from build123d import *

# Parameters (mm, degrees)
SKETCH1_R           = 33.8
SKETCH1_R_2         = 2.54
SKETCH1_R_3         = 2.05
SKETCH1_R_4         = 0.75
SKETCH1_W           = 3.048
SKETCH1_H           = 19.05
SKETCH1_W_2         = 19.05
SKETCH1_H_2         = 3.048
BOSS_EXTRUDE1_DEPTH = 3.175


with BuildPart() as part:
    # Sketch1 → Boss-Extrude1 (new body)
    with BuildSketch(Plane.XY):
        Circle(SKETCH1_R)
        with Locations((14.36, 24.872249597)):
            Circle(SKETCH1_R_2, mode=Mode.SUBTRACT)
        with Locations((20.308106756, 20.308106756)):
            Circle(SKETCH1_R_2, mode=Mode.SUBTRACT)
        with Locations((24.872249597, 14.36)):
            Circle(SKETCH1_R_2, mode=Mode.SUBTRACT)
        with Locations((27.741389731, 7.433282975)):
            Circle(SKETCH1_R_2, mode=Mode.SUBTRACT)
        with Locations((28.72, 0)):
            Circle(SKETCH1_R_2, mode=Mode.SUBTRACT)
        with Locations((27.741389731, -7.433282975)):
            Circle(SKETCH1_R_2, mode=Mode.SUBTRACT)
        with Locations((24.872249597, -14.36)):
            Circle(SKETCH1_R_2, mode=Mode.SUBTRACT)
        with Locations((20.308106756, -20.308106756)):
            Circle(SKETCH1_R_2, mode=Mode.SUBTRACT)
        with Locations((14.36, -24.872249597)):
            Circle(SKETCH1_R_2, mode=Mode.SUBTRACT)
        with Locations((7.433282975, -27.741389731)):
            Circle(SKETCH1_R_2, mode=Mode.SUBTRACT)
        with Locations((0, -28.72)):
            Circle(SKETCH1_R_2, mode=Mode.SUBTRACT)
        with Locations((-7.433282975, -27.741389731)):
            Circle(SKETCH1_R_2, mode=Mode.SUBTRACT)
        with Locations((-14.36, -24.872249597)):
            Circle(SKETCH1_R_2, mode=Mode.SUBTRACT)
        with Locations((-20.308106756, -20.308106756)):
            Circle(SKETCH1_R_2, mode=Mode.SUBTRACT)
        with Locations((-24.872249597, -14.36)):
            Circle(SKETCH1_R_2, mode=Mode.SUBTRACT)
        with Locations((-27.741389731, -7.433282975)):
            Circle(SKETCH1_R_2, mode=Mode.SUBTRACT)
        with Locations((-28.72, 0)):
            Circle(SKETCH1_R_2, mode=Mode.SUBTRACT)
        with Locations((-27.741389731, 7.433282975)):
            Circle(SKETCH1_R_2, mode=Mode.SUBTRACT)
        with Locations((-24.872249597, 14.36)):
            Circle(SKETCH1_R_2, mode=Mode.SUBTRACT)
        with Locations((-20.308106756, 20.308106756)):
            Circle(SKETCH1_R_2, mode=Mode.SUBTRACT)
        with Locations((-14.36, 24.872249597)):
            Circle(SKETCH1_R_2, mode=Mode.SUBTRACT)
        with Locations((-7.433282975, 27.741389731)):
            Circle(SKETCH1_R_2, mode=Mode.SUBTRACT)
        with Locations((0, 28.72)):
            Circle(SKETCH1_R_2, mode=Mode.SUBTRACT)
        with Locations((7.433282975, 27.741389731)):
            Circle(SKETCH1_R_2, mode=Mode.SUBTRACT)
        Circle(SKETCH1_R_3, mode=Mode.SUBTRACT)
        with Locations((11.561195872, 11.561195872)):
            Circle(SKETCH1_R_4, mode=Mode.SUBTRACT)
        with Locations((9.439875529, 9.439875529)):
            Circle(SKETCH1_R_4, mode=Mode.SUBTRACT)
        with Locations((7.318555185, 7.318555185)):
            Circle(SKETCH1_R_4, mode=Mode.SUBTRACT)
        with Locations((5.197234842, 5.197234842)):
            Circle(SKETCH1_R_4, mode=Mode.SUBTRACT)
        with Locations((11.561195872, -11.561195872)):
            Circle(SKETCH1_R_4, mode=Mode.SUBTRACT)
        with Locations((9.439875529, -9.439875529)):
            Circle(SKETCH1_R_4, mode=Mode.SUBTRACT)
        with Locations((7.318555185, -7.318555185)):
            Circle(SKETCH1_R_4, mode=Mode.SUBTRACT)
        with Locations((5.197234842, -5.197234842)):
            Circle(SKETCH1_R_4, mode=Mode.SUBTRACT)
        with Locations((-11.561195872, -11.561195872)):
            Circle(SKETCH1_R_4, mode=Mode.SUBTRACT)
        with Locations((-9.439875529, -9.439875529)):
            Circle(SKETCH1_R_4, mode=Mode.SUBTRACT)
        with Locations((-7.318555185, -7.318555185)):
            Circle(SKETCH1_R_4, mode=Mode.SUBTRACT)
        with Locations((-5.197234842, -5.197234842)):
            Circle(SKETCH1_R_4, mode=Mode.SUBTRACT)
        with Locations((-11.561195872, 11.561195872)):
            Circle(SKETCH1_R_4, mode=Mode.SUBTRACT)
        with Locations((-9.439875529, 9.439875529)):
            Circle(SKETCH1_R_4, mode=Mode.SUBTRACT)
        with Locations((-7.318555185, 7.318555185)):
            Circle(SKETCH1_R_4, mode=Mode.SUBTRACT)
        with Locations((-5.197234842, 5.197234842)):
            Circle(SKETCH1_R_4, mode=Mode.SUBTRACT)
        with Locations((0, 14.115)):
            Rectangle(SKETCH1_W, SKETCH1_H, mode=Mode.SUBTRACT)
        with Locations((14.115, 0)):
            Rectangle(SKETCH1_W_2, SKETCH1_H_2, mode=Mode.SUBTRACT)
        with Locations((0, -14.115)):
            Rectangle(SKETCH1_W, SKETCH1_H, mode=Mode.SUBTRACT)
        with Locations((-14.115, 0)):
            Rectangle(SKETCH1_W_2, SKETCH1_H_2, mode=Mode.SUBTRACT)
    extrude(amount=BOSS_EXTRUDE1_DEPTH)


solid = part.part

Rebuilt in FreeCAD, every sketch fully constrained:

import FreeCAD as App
import Part
import Sketcher
from FreeCAD import Vector
Q = App.Units.Quantity


def add_polygon(sketch, points):
    """Adds a closed chain of lines whose ends are joined by coincident constraints."""
    first, n = sketch.GeometryCount, len(points)
    for a, b in zip(points, points[1:] + points[:1]):
        sketch.addGeometry(Part.LineSegment(App.Vector(*a, 0), App.Vector(*b, 0)), False)
    for i in range(n):
        sketch.addConstraint(Sketcher.Constraint("Coincident", first + i, 2, first + (i + 1) % n, 1))

doc = App.newDocument("Part")
params = doc.addObject("Spreadsheet::Sheet", "Params")
for row, (alias, value) in enumerate([
    ("sketch1_diameter", "0.2 in"),
    ("sketch1_width", "0.12 in"),
    ("sketch1_width2", "0.75 in"),
    ("pad1_length", "0.125 in"),
], start=1):
    params.set(f"A{row}", alias)
    params.set(f"B{row}", "=" + value)
    params.setAlias(f"B{row}", alias)

body = doc.addObject("PartDesign::Body", "Body")

# Sketch on XY plane
sketch1 = doc.addObject("Sketcher::SketchObject", "Sketch")
body.addObject(sketch1)
sketch1.AttachmentSupport = (doc.XY_Plane, [""])
sketch1.MapMode = "FlatFace"
sketch1.addGeometry(Part.Circle(Vector(0, 0, 0), Vector(0, 0, 1), 33.8), False)  # 0
sketch1.addGeometry(Part.Circle(Vector(-20.3, -20.3, 0), Vector(0, 0, 1), 2.5), False)  # 1
sketch1.addGeometry(Part.Circle(Vector(-14.4, -24.9, 0), Vector(0, 0, 1), 2.5), False)  # 2
sketch1.addGeometry(Part.Circle(Vector(-7.4, -27.7, 0), Vector(0, 0, 1), 2.5), False)  # 3
sketch1.addGeometry(Part.Circle(Vector(0, -28.7, 0), Vector(0, 0, 1), 2.5), False)  # 4
sketch1.addGeometry(Part.Circle(Vector(-24.9, -14.4, 0), Vector(0, 0, 1), 2.5), False)  # 5
sketch1.addGeometry(Part.Circle(Vector(-27.7, -7.4, 0), Vector(0, 0, 1), 2.5), False)  # 6
sketch1.addGeometry(Part.Circle(Vector(-28.7, 0, 0), Vector(0, 0, 1), 2.5), False)  # 7
sketch1.addGeometry(Part.Circle(Vector(-11.6, -11.6, 0), Vector(0, 0, 1), 0.8), False)  # 8
sketch1.addGeometry(Part.Circle(Vector(-9.4, -9.4, 0), Vector(0, 0, 1), 0.8), False)  # 9
add_polygon(sketch1, [(1.5, -23.6), (-1.5, -23.6), (-1.5, -4.6), (1.5, -4.6)])  # lines 10-13
add_polygon(sketch1, [(-4.6, -1.5), (-23.6, -1.5), (-23.6, 1.5), (-4.6, 1.5)])  # lines 14-17
sketch1.addGeometry(Part.Circle(Vector(-7.3, -7.3, 0), Vector(0, 0, 1), 0.8), False)  # 18
sketch1.addGeometry(Part.Circle(Vector(-5.2, -5.2, 0), Vector(0, 0, 1), 0.8), False)  # 19
sketch1.addGeometry(Part.Circle(Vector(0, 0, 0), Vector(0, 0, 1), 2), False)  # 20
sketch1.addGeometry(Part.Circle(Vector(7.4, -27.7, 0), Vector(0, 0, 1), 2.5), False)  # 21
sketch1.addGeometry(Part.Circle(Vector(14.4, -24.9, 0), Vector(0, 0, 1), 2.5), False)  # 22
sketch1.addGeometry(Part.Circle(Vector(20.3, -20.3, 0), Vector(0, 0, 1), 2.5), False)  # 23
sketch1.addGeometry(Part.Circle(Vector(11.6, -11.6, 0), Vector(0, 0, 1), 0.8), False)  # 24
sketch1.addGeometry(Part.Circle(Vector(9.4, -9.4, 0), Vector(0, 0, 1), 0.8), False)  # 25
sketch1.addGeometry(Part.Circle(Vector(7.3, -7.3, 0), Vector(0, 0, 1), 0.8), False)  # 26
sketch1.addGeometry(Part.Circle(Vector(5.2, -5.2, 0), Vector(0, 0, 1), 0.8), False)  # 27
add_polygon(sketch1, [(23.6, -1.5), (4.6, -1.5), (4.6, 1.5), (23.6, 1.5)])  # lines 28-31
sketch1.addGeometry(Part.Circle(Vector(24.9, -14.4, 0), Vector(0, 0, 1), 2.5), False)  # 32
sketch1.addGeometry(Part.Circle(Vector(27.7, -7.4, 0), Vector(0, 0, 1), 2.5), False)  # 33
sketch1.addGeometry(Part.Circle(Vector(28.7, 0, 0), Vector(0, 0, 1), 2.5), False)  # 34
sketch1.addGeometry(Part.Circle(Vector(-27.7, 7.4, 0), Vector(0, 0, 1), 2.5), False)  # 35
sketch1.addGeometry(Part.Circle(Vector(-24.9, 14.4, 0), Vector(0, 0, 1), 2.5), False)  # 36
sketch1.addGeometry(Part.Circle(Vector(-5.2, 5.2, 0), Vector(0, 0, 1), 0.8), False)  # 37
sketch1.addGeometry(Part.Circle(Vector(-7.3, 7.3, 0), Vector(0, 0, 1), 0.8), False)  # 38
sketch1.addGeometry(Part.Circle(Vector(-9.4, 9.4, 0), Vector(0, 0, 1), 0.8), False)  # 39
sketch1.addGeometry(Part.Circle(Vector(-11.6, 11.6, 0), Vector(0, 0, 1), 0.8), False)  # 40
add_polygon(sketch1, [(1.5, 4.6), (-1.5, 4.6), (-1.5, 23.6), (1.5, 23.6)])  # lines 41-44
sketch1.addGeometry(Part.Circle(Vector(-20.3, 20.3, 0), Vector(0, 0, 1), 2.5), False)  # 45
sketch1.addGeometry(Part.Circle(Vector(-14.4, 24.9, 0), Vector(0, 0, 1), 2.5), False)  # 46
sketch1.addGeometry(Part.Circle(Vector(-7.4, 27.7, 0), Vector(0, 0, 1), 2.5), False)  # 47
sketch1.addGeometry(Part.Circle(Vector(0, 28.7, 0), Vector(0, 0, 1), 2.5), False)  # 48
sketch1.addGeometry(Part.Circle(Vector(5.2, 5.2, 0), Vector(0, 0, 1), 0.8), False)  # 49
sketch1.addGeometry(Part.Circle(Vector(7.3, 7.3, 0), Vector(0, 0, 1), 0.8), False)  # 50
sketch1.addGeometry(Part.Circle(Vector(9.4, 9.4, 0), Vector(0, 0, 1), 0.8), False)  # 51
sketch1.addGeometry(Part.Circle(Vector(11.6, 11.6, 0), Vector(0, 0, 1), 0.8), False)  # 52
sketch1.addGeometry(Part.Circle(Vector(27.7, 7.4, 0), Vector(0, 0, 1), 2.5), False)  # 53
sketch1.addGeometry(Part.Circle(Vector(24.9, 14.4, 0), Vector(0, 0, 1), 2.5), False)  # 54
sketch1.addGeometry(Part.Circle(Vector(7.4, 27.7, 0), Vector(0, 0, 1), 2.5), False)  # 55
sketch1.addGeometry(Part.Circle(Vector(14.4, 24.9, 0), Vector(0, 0, 1), 2.5), False)  # 56
sketch1.addGeometry(Part.Circle(Vector(20.3, 20.3, 0), Vector(0, 0, 1), 2.5), False)  # 57
sketch1.addConstraint(Sketcher.Constraint("Horizontal", 10))
sketch1.addConstraint(Sketcher.Constraint("Vertical", 11))
sketch1.addConstraint(Sketcher.Constraint("Horizontal", 12))
sketch1.addConstraint(Sketcher.Constraint("Vertical", 13))
sketch1.addConstraint(Sketcher.Constraint("Horizontal", 14))
sketch1.addConstraint(Sketcher.Constraint("Vertical", 15))
sketch1.addConstraint(Sketcher.Constraint("Horizontal", 16))
sketch1.addConstraint(Sketcher.Constraint("Vertical", 17))
sketch1.addConstraint(Sketcher.Constraint("Horizontal", 28))
sketch1.addConstraint(Sketcher.Constraint("Vertical", 29))
sketch1.addConstraint(Sketcher.Constraint("Horizontal", 30))
sketch1.addConstraint(Sketcher.Constraint("Vertical", 31))
sketch1.addConstraint(Sketcher.Constraint("Horizontal", 41))
sketch1.addConstraint(Sketcher.Constraint("Vertical", 42))
sketch1.addConstraint(Sketcher.Constraint("Horizontal", 43))
sketch1.addConstraint(Sketcher.Constraint("Vertical", 44))
sketch1.addConstraint(Sketcher.Constraint("Coincident", 0, 3, -1, 1))
sketch1.addConstraint(Sketcher.Constraint("Coincident", 20, 3, -1, 1))
sketch1.addConstraint(Sketcher.Constraint("Equal", 1, 2))
sketch1.addConstraint(Sketcher.Constraint("Equal", 2, 3))
sketch1.addConstraint(Sketcher.Constraint("Equal", 3, 4))
sketch1.addConstraint(Sketcher.Constraint("Equal", 4, 5))
sketch1.addConstraint(Sketcher.Constraint("Equal", 5, 6))
sketch1.addConstraint(Sketcher.Constraint("Equal", 6, 7))
sketch1.addConstraint(Sketcher.Constraint("Equal", 8, 9))
sketch1.addConstraint(Sketcher.Constraint("Equal", 9, 18))
sketch1.addConstraint(Sketcher.Constraint("Equal", 18, 19))
sketch1.addConstraint(Sketcher.Constraint("Equal", 7, 21))
sketch1.addConstraint(Sketcher.Constraint("Equal", 21, 22))
sketch1.addConstraint(Sketcher.Constraint("Equal", 22, 23))
sketch1.addConstraint(Sketcher.Constraint("Equal", 19, 24))
sketch1.addConstraint(Sketcher.Constraint("Equal", 24, 25))
sketch1.addConstraint(Sketcher.Constraint("Equal", 25, 26))
sketch1.addConstraint(Sketcher.Constraint("Equal", 26, 27))
sketch1.addConstraint(Sketcher.Constraint("Equal", 23, 32))
sketch1.addConstraint(Sketcher.Constraint("Equal", 32, 33))
sketch1.addConstraint(Sketcher.Constraint("Equal", 33, 34))
sketch1.addConstraint(Sketcher.Constraint("Equal", 34, 35))
sketch1.addConstraint(Sketcher.Constraint("Equal", 35, 36))
sketch1.addConstraint(Sketcher.Constraint("Equal", 27, 37))
sketch1.addConstraint(Sketcher.Constraint("Equal", 37, 38))
sketch1.addConstraint(Sketcher.Constraint("Equal", 38, 39))
sketch1.addConstraint(Sketcher.Constraint("Equal", 39, 40))
sketch1.addConstraint(Sketcher.Constraint("Equal", 36, 45))
sketch1.addConstraint(Sketcher.Constraint("Equal", 45, 46))
sketch1.addConstraint(Sketcher.Constraint("Equal", 46, 47))
sketch1.addConstraint(Sketcher.Constraint("Equal", 47, 48))
sketch1.addConstraint(Sketcher.Constraint("Equal", 40, 49))
sketch1.addConstraint(Sketcher.Constraint("Equal", 49, 50))
sketch1.addConstraint(Sketcher.Constraint("Equal", 50, 51))
sketch1.addConstraint(Sketcher.Constraint("Equal", 51, 52))
sketch1.addConstraint(Sketcher.Constraint("Equal", 48, 53))
sketch1.addConstraint(Sketcher.Constraint("Equal", 53, 54))
sketch1.addConstraint(Sketcher.Constraint("Equal", 54, 55))
sketch1.addConstraint(Sketcher.Constraint("Equal", 55, 56))
sketch1.addConstraint(Sketcher.Constraint("Equal", 56, 57))
sketch1.addConstraint(Sketcher.Constraint("Symmetric", 7, 3, 34, 3, -1, 1))
sketch1.addConstraint(Sketcher.Constraint("Symmetric", 33, 3, 35, 3, -1, 1))
sketch1.addConstraint(Sketcher.Constraint("Symmetric", 32, 3, 36, 3, -1, 1))
sketch1.addConstraint(Sketcher.Constraint("Symmetric", 27, 3, 37, 3, -1, 1))
sketch1.addConstraint(Sketcher.Constraint("Symmetric", 26, 3, 38, 3, -1, 1))
sketch1.addConstraint(Sketcher.Constraint("Symmetric", 25, 3, 39, 3, -1, 1))
sketch1.addConstraint(Sketcher.Constraint("Symmetric", 24, 3, 40, 3, -1, 1))
sketch1.addConstraint(Sketcher.Constraint("Symmetric", 23, 3, 45, 3, -1, 1))
sketch1.addConstraint(Sketcher.Constraint("Symmetric", 22, 3, 46, 3, -1, 1))
sketch1.addConstraint(Sketcher.Constraint("Symmetric", 21, 3, 47, 3, -1, 1))
sketch1.addConstraint(Sketcher.Constraint("Symmetric", 4, 3, 48, 3, -1, 1))
sketch1.addConstraint(Sketcher.Constraint("Symmetric", 19, 3, 49, 3, -1, 1))
sketch1.addConstraint(Sketcher.Constraint("Symmetric", 18, 3, 50, 3, -1, 1))
sketch1.addConstraint(Sketcher.Constraint("Symmetric", 9, 3, 51, 3, -1, 1))
sketch1.addConstraint(Sketcher.Constraint("Symmetric", 8, 3, 52, 3, -1, 1))
sketch1.addConstraint(Sketcher.Constraint("Symmetric", 6, 3, 53, 3, -1, 1))
sketch1.addConstraint(Sketcher.Constraint("Symmetric", 5, 3, 54, 3, -1, 1))
sketch1.addConstraint(Sketcher.Constraint("Symmetric", 3, 3, 55, 3, -1, 1))
sketch1.addConstraint(Sketcher.Constraint("Symmetric", 2, 3, 56, 3, -1, 1))
sketch1.addConstraint(Sketcher.Constraint("Symmetric", 1, 3, 57, 3, -1, 1))
sketch1.addConstraint(Sketcher.Constraint("Symmetric", 16, 2, 28, 2, -1, 1))
sketch1.addConstraint(Sketcher.Constraint("Symmetric", 14, 2, 30, 2, -1, 1))
sketch1.addConstraint(Sketcher.Constraint("Symmetric", 12, 2, 41, 2, -1, 1))
sketch1.addConstraint(Sketcher.Constraint("Symmetric", 10, 2, 43, 2, -1, 1))
sketch1.addConstraint(Sketcher.Constraint("Symmetric", 3, 3, 21, 3, -2))
sketch1.addConstraint(Sketcher.Constraint("Symmetric", 2, 3, 22, 3, -2))
sketch1.addConstraint(Sketcher.Constraint("Symmetric", 1, 3, 23, 3, -2))
sketch1.addConstraint(Sketcher.Constraint("Symmetric", 8, 3, 24, 3, -2))
sketch1.addConstraint(Sketcher.Constraint("Symmetric", 9, 3, 25, 3, -2))
sketch1.addConstraint(Sketcher.Constraint("Symmetric", 18, 3, 26, 3, -2))
sketch1.addConstraint(Sketcher.Constraint("Symmetric", 19, 3, 27, 3, -2))
sketch1.addConstraint(Sketcher.Constraint("Symmetric", 5, 3, 32, 3, -2))
sketch1.addConstraint(Sketcher.Constraint("Symmetric", 6, 3, 33, 3, -2))
sketch1.addConstraint(Sketcher.Constraint("PointOnObject", 4, 3, -2))
sketch1.addConstraint(Sketcher.Constraint("PointOnObject", 7, 3, -1))
sketch1.addConstraint(Sketcher.Constraint("Horizontal", 17, 2, 28, 2))
sketch1.addConstraint(Sketcher.Constraint("Vertical", 11, 2, 41, 2))
sketch1.addConstraint(Sketcher.Constraint("Equal", 30, 11))
sketch1.addConstraint(Sketcher.Constraint("Equal", 43, 15))
sketch1.addConstraint(Sketcher.Constraint("Diameter", 1, Q("0.2 in")))
sketch1.addConstraint(Sketcher.Constraint("DistanceX", 10, 2, 10, 1, Q("0.12 in")))
sketch1.addConstraint(Sketcher.Constraint("DistanceX", 14, 2, 14, 1, Q("0.75 in")))
sketch1.addConstraint(Sketcher.Constraint("DistanceY", 4, 3, 10, 2, Q("0.2 in")))
sketch1.addConstraint(Sketcher.Constraint("DistanceX", 7, 3, 14, 2, Q("0.2 in")))
sketch1.addConstraint(Sketcher.Constraint("Diameter", 0, Q("67.6 mm")))
sketch1.addConstraint(Sketcher.Constraint("Diameter", 8, Q("1.5 mm")))
sketch1.addConstraint(Sketcher.Constraint("Diameter", 20, Q("4.1 mm")))
sketch1.addConstraint(Sketcher.Constraint("DistanceX", 2, 3, -1, 1, Q("14.36 mm")))
sketch1.addConstraint(Sketcher.Constraint("DistanceY", 4, 3, -1, 1, Q("28.72 mm")))
sketch1.addConstraint(Sketcher.Constraint("DistanceY", 5, 3, -1, 1, Q("14.36 mm")))
sketch1.addConstraint(Sketcher.Constraint("DistanceX", 7, 3, -1, 1, Q("28.72 mm")))
sketch1.addConstraint(Sketcher.Constraint("DistanceY", 2, 3, -1, 1, Q("24.87225 mm")))
sketch1.addConstraint(Sketcher.Constraint("DistanceY", 3, 3, -1, 1, Q("27.74139 mm")))
sketch1.addConstraint(Sketcher.Constraint("DistanceX", 5, 3, -1, 1, Q("24.87225 mm")))
sketch1.addConstraint(Sketcher.Constraint("DistanceX", 6, 3, -1, 1, Q("27.74139 mm")))
sketch1.addConstraint(Sketcher.Constraint("DistanceX", 1, 3, 8, 3, Q("8.746911 mm")))
sketch1.addConstraint(Sketcher.Constraint("DistanceY", 1, 3, 8, 3, Q("8.746911 mm")))
sketch1.addConstraint(Sketcher.Constraint("DistanceX", 8, 3, 9, 3, Q("2.12132 mm")))
sketch1.addConstraint(Sketcher.Constraint("DistanceY", 8, 3, 9, 3, Q("2.12132 mm")))
sketch1.addConstraint(Sketcher.Constraint("DistanceX", 9, 3, 18, 3, Q("2.12132 mm")))
sketch1.addConstraint(Sketcher.Constraint("DistanceY", 9, 3, 18, 3, Q("2.12132 mm")))
sketch1.addConstraint(Sketcher.Constraint("DistanceX", 18, 3, 19, 3, Q("2.12132 mm")))
sketch1.addConstraint(Sketcher.Constraint("DistanceY", 18, 3, 19, 3, Q("2.12132 mm")))
sketch1.addConstraint(Sketcher.Constraint("DistanceX", 9, 3, 21, 3, Q("16.873159 mm")))
sketch1.addConstraint(Sketcher.Constraint("DistanceX", 19, 3, 25, 3, Q("14.63711 mm")))
sketch1.addConstraint(Sketcher.Constraint("DistanceY", 9, 3, 35, 3, Q("16.873159 mm")))
sketch1.addConstraint(Sketcher.Constraint("DistanceY", 19, 3, 37, 3, Q("10.39447 mm")))
sketch1.setExpression("Constraints[111]", "Params.sketch1_diameter")
sketch1.setExpression("Constraints[112]", "Params.sketch1_width")
sketch1.setExpression("Constraints[113]", "Params.sketch1_width2")
pad1 = doc.addObject("PartDesign::Pad", "Pad")
body.addObject(pad1)
pad1.Profile = sketch1
pad1.setExpression("Length", "Params.pad1_length")

doc.recompute()
